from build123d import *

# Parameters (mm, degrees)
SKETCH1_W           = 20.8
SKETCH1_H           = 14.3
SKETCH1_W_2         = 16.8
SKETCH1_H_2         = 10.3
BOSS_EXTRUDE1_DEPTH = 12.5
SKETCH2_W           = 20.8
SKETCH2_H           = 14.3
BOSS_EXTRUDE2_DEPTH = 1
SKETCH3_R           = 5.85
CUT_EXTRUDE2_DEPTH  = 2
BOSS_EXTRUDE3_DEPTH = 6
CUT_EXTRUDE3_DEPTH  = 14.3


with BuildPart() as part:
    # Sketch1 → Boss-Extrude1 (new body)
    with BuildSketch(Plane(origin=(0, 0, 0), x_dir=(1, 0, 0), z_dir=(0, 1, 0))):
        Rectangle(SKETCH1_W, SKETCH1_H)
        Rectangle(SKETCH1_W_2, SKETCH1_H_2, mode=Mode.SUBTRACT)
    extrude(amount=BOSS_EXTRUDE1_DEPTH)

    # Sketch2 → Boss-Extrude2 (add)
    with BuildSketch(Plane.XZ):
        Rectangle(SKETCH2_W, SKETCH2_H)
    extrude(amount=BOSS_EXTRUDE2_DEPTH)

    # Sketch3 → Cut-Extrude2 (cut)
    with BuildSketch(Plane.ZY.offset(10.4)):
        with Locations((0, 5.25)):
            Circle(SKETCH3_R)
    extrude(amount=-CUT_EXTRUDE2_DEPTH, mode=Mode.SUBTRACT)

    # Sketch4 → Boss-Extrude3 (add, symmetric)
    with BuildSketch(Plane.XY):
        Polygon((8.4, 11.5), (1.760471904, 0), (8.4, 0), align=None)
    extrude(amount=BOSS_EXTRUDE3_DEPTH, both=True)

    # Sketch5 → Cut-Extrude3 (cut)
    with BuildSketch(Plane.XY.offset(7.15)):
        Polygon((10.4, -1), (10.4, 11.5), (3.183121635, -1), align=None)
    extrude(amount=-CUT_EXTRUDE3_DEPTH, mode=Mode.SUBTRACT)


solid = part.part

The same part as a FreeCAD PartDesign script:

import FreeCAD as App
import Part
import Sketcher

V = App.Vector
Q = App.Units.Quantity


def add_polygon(sketch, points):
    """Adds a closed chain of lines whose ends are joined by coincident constraints."""
    first, n = sketch.GeometryCount, len(points)
    for a, b in zip(points, points[1:] + points[:1]):
        sketch.addGeometry(Part.LineSegment(App.Vector(*a, 0), App.Vector(*b, 0)), False)
    for i in range(n):
        sketch.addConstraint(Sketcher.Constraint("Coincident", first + i, 2, first + (i + 1) % n, 1))

doc = App.newDocument("Part")
params = doc.addObject("Spreadsheet::Sheet", "Params")
for row, (alias, value) in enumerate([
    ("sketch1_width", "20.8 mm"),
    ("sketch1_width2", "16.8 mm"),
    ("sketch1_height", "14.3 mm"),
    ("sketch1_height2", "10.3 mm"),
    ("pad1_length", "12.5 mm"),
    ("sketch2_width", "20.8 mm"),
    ("sketch2_height", "14.3 mm"),
    ("pad2_length", "1 mm"),
    ("sketch3_diameter", "11.7 mm"),
    ("pocket1_length", "2 mm"),
    ("sketch4_height", "11.5 mm"),
    ("pad3_length", "12 mm"),
    ("sketch5_height", "12.5 mm"),
    ("pocket2_length", "14.3 mm"),
], start=1):
    params.set(f"A{row}", alias)
    params.set(f"B{row}", "=" + value)
    params.setAlias(f"B{row}", alias)

body = doc.addObject("PartDesign::Body", "Body")

sketch1 = doc.addObject("Sketcher::SketchObject", "Sketch")
body.addObject(sketch1)
sketch1.AttachmentSupport = (doc.XZ_Plane, [""])
sketch1.MapMode = "FlatFace"
add_polygon(sketch1, [(-10, -7), (-10, 7), (10, 7), (10, -7)])
add_polygon(sketch1, [(8, 5), (-8, 5), (-8, -5), (8, -5)])
sketch1.addConstraint(Sketcher.Constraint("Vertical", 0))
sketch1.addConstraint(Sketcher.Constraint("Horizontal", 1))
sketch1.addConstraint(Sketcher.Constraint("Vertical", 2))
sketch1.addConstraint(Sketcher.Constraint("Horizontal", 3))
sketch1.addConstraint(Sketcher.Constraint("Horizontal", 4))
sketch1.addConstraint(Sketcher.Constraint("Vertical", 5))
sketch1.addConstraint(Sketcher.Constraint("Horizontal", 6))
sketch1.addConstraint(Sketcher.Constraint("Vertical", 7))
sketch1.addConstraint(Sketcher.Constraint("Symmetric", 0, 2, 2, 2, -1, 1))
sketch1.addConstraint(Sketcher.Constraint("Symmetric", 4, 2, 6, 2, -1, 1))
sketch1.addConstraint(Sketcher.Constraint("DistanceX", 1, 1, 1, 2, Q("20.8 mm")))
sketch1.addConstraint(Sketcher.Constraint("DistanceX", 4, 2, 4, 1, Q("16.8 mm")))
sketch1.addConstraint(Sketcher.Constraint("DistanceY", 0, 1, 0, 2, Q("14.3 mm")))
sketch1.addConstraint(Sketcher.Constraint("DistanceY", 5, 2, 5, 1, Q("10.3 mm")))
sketch1.setExpression("Constraints[18]", "Params.sketch1_width")
sketch1.setExpression("Constraints[19]", "Params.sketch1_width2")
sketch1.setExpression("Constraints[20]", "Params.sketch1_height")
sketch1.setExpression("Constraints[21]", "Params.sketch1_height2")
pad1 = doc.addObject("PartDesign::Pad", "Pad")
body.addObject(pad1)
pad1.Profile = sketch1
pad1.setExpression("Length", "Params.pad1_length")
pad1.Reversed = True

sketch2 = doc.addObject("Sketcher::SketchObject", "Sketch001")
body.addObject(sketch2)
sketch2.AttachmentSupport = (doc.XZ_Plane, [""])
sketch2.MapMode = "FlatFace"
add_polygon(sketch2, [(-10, 7), (-10, -7), (10, -7), (10, 7)])
sketch2.addConstraint(Sketcher.Constraint("Vertical", 0))
sketch2.addConstraint(Sketcher.Constraint("Horizontal", 1))
sketch2.addConstraint(Sketcher.Constraint("Vertical", 2))
sketch2.addConstraint(Sketcher.Constraint("Horizontal", 3))
sketch2.addConstraint(Sketcher.Constraint("Symmetric", 0, 2, 2, 2, -1, 1))
sketch2.addConstraint(Sketcher.Constraint("DistanceX", 1, 1, 1, 2, Q("20.8 mm")))
sketch2.addConstraint(Sketcher.Constraint("DistanceY", 0, 2, 0, 1, Q("14.3 mm")))
sketch2.setExpression("Constraints[9]", "Params.sketch2_width")
sketch2.setExpression("Constraints[10]", "Params.sketch2_height")
pad2 = doc.addObject("PartDesign::Pad", "Pad001")
body.addObject(pad2)
pad2.Profile = sketch2
pad2.setExpression("Length", "Params.pad2_length")

sketch3 = doc.addObject("Sketcher::SketchObject", "Sketch002")
body.addObject(sketch3)
sketch3.AttachmentSupport = (doc.YZ_Plane, [""])
sketch3.MapMode = "FlatFace"
sketch3.AttachmentOffset = App.Placement(V(0, 0, -10.4), App.Rotation())
sketch3.addGeometry(Part.Circle(V(5, 0, 0), V(0, 0, 1), 6), False)
sketch3.addConstraint(Sketcher.Constraint("PointOnObject", 0, 3, -1))
sketch3.addConstraint(Sketcher.Constraint("Diameter", 0, Q("11.7 mm")))
sketch3.addConstraint(Sketcher.Constraint("DistanceX", -1, 1, 0, 3, Q("5.25 mm")))
sketch3.setExpression("Constraints[1]", "Params.sketch3_diameter")
pocket1 = doc.addObject("PartDesign::Pocket", "Pocket")
body.addObject(pocket1)
pocket1.Profile = sketch3
pocket1.setExpression("Length", "Params.pocket1_length")
pocket1.Reversed = True

sketch4 = doc.addObject("Sketcher::SketchObject", "Sketch003")
body.addObject(sketch4)
sketch4.AttachmentSupport = (doc.XY_Plane, [""])
sketch4.MapMode = "FlatFace"
add_polygon(sketch4, [(8, 12), (2, 0), (8, 0)])
sketch4.addConstraint(Sketcher.Constraint("Horizontal", 1))
sketch4.addConstraint(Sketcher.Constraint("Vertical", 2))
sketch4.addConstraint(Sketcher.Constraint("PointOnObject", 0, 2, -1))
sketch4.addConstraint(Sketcher.Constraint("Angle", 0, Q("-120 deg")))
sketch4.addConstraint(Sketcher.Constraint("DistanceY", 2, 1, 2, 2, Q("11.5 mm")))
sketch4.addConstraint(Sketcher.Constraint("DistanceX", -1, 1, 1, 2, Q("8.4 mm")))
sketch4.setExpression("Constraints[7]", "Params.sketch4_height")
pad3 = doc.addObject("PartDesign::Pad", "Pad002")
body.addObject(pad3)
pad3.Profile = sketch4
pad3.setExpression("Length", "Params.pad3_length")
pad3.Midplane = True

sketch5 = doc.addObject("Sketcher::SketchObject", "Sketch004")
body.addObject(sketch5)
sketch5.AttachmentSupport = (doc.XY_Plane, [""])
sketch5.MapMode = "FlatFace"
sketch5.AttachmentOffset = App.Placement(V(0, 0, 7.15), App.Rotation())
add_polygon(sketch5, [(10, -1), (10, 12), (3, -1)])
sketch5.addConstraint(Sketcher.Constraint("Vertical", 0))
sketch5.addConstraint(Sketcher.Constraint("Horizontal", 2))
sketch5.addConstraint(Sketcher.Constraint("Angle", 1, Q("-120 deg")))
sketch5.addConstraint(Sketcher.Constraint("DistanceY", 0, 1, 0, 2, Q("12.5 mm")))
sketch5.addConstraint(Sketcher.Constraint("DistanceY", 1, 2, -1, 1, Q("1 mm")))
sketch5.addConstraint(Sketcher.Constraint("DistanceX", -1, 1, 0, 2, Q("10.4 mm")))
sketch5.setExpression("Constraints[6]", "Params.sketch5_height")
pocket2 = doc.addObject("PartDesign::Pocket", "Pocket001")
body.addObject(pocket2)
pocket2.Profile = sketch5
pocket2.setExpression("Length", "Params.pocket2_length")

doc.recompute()
